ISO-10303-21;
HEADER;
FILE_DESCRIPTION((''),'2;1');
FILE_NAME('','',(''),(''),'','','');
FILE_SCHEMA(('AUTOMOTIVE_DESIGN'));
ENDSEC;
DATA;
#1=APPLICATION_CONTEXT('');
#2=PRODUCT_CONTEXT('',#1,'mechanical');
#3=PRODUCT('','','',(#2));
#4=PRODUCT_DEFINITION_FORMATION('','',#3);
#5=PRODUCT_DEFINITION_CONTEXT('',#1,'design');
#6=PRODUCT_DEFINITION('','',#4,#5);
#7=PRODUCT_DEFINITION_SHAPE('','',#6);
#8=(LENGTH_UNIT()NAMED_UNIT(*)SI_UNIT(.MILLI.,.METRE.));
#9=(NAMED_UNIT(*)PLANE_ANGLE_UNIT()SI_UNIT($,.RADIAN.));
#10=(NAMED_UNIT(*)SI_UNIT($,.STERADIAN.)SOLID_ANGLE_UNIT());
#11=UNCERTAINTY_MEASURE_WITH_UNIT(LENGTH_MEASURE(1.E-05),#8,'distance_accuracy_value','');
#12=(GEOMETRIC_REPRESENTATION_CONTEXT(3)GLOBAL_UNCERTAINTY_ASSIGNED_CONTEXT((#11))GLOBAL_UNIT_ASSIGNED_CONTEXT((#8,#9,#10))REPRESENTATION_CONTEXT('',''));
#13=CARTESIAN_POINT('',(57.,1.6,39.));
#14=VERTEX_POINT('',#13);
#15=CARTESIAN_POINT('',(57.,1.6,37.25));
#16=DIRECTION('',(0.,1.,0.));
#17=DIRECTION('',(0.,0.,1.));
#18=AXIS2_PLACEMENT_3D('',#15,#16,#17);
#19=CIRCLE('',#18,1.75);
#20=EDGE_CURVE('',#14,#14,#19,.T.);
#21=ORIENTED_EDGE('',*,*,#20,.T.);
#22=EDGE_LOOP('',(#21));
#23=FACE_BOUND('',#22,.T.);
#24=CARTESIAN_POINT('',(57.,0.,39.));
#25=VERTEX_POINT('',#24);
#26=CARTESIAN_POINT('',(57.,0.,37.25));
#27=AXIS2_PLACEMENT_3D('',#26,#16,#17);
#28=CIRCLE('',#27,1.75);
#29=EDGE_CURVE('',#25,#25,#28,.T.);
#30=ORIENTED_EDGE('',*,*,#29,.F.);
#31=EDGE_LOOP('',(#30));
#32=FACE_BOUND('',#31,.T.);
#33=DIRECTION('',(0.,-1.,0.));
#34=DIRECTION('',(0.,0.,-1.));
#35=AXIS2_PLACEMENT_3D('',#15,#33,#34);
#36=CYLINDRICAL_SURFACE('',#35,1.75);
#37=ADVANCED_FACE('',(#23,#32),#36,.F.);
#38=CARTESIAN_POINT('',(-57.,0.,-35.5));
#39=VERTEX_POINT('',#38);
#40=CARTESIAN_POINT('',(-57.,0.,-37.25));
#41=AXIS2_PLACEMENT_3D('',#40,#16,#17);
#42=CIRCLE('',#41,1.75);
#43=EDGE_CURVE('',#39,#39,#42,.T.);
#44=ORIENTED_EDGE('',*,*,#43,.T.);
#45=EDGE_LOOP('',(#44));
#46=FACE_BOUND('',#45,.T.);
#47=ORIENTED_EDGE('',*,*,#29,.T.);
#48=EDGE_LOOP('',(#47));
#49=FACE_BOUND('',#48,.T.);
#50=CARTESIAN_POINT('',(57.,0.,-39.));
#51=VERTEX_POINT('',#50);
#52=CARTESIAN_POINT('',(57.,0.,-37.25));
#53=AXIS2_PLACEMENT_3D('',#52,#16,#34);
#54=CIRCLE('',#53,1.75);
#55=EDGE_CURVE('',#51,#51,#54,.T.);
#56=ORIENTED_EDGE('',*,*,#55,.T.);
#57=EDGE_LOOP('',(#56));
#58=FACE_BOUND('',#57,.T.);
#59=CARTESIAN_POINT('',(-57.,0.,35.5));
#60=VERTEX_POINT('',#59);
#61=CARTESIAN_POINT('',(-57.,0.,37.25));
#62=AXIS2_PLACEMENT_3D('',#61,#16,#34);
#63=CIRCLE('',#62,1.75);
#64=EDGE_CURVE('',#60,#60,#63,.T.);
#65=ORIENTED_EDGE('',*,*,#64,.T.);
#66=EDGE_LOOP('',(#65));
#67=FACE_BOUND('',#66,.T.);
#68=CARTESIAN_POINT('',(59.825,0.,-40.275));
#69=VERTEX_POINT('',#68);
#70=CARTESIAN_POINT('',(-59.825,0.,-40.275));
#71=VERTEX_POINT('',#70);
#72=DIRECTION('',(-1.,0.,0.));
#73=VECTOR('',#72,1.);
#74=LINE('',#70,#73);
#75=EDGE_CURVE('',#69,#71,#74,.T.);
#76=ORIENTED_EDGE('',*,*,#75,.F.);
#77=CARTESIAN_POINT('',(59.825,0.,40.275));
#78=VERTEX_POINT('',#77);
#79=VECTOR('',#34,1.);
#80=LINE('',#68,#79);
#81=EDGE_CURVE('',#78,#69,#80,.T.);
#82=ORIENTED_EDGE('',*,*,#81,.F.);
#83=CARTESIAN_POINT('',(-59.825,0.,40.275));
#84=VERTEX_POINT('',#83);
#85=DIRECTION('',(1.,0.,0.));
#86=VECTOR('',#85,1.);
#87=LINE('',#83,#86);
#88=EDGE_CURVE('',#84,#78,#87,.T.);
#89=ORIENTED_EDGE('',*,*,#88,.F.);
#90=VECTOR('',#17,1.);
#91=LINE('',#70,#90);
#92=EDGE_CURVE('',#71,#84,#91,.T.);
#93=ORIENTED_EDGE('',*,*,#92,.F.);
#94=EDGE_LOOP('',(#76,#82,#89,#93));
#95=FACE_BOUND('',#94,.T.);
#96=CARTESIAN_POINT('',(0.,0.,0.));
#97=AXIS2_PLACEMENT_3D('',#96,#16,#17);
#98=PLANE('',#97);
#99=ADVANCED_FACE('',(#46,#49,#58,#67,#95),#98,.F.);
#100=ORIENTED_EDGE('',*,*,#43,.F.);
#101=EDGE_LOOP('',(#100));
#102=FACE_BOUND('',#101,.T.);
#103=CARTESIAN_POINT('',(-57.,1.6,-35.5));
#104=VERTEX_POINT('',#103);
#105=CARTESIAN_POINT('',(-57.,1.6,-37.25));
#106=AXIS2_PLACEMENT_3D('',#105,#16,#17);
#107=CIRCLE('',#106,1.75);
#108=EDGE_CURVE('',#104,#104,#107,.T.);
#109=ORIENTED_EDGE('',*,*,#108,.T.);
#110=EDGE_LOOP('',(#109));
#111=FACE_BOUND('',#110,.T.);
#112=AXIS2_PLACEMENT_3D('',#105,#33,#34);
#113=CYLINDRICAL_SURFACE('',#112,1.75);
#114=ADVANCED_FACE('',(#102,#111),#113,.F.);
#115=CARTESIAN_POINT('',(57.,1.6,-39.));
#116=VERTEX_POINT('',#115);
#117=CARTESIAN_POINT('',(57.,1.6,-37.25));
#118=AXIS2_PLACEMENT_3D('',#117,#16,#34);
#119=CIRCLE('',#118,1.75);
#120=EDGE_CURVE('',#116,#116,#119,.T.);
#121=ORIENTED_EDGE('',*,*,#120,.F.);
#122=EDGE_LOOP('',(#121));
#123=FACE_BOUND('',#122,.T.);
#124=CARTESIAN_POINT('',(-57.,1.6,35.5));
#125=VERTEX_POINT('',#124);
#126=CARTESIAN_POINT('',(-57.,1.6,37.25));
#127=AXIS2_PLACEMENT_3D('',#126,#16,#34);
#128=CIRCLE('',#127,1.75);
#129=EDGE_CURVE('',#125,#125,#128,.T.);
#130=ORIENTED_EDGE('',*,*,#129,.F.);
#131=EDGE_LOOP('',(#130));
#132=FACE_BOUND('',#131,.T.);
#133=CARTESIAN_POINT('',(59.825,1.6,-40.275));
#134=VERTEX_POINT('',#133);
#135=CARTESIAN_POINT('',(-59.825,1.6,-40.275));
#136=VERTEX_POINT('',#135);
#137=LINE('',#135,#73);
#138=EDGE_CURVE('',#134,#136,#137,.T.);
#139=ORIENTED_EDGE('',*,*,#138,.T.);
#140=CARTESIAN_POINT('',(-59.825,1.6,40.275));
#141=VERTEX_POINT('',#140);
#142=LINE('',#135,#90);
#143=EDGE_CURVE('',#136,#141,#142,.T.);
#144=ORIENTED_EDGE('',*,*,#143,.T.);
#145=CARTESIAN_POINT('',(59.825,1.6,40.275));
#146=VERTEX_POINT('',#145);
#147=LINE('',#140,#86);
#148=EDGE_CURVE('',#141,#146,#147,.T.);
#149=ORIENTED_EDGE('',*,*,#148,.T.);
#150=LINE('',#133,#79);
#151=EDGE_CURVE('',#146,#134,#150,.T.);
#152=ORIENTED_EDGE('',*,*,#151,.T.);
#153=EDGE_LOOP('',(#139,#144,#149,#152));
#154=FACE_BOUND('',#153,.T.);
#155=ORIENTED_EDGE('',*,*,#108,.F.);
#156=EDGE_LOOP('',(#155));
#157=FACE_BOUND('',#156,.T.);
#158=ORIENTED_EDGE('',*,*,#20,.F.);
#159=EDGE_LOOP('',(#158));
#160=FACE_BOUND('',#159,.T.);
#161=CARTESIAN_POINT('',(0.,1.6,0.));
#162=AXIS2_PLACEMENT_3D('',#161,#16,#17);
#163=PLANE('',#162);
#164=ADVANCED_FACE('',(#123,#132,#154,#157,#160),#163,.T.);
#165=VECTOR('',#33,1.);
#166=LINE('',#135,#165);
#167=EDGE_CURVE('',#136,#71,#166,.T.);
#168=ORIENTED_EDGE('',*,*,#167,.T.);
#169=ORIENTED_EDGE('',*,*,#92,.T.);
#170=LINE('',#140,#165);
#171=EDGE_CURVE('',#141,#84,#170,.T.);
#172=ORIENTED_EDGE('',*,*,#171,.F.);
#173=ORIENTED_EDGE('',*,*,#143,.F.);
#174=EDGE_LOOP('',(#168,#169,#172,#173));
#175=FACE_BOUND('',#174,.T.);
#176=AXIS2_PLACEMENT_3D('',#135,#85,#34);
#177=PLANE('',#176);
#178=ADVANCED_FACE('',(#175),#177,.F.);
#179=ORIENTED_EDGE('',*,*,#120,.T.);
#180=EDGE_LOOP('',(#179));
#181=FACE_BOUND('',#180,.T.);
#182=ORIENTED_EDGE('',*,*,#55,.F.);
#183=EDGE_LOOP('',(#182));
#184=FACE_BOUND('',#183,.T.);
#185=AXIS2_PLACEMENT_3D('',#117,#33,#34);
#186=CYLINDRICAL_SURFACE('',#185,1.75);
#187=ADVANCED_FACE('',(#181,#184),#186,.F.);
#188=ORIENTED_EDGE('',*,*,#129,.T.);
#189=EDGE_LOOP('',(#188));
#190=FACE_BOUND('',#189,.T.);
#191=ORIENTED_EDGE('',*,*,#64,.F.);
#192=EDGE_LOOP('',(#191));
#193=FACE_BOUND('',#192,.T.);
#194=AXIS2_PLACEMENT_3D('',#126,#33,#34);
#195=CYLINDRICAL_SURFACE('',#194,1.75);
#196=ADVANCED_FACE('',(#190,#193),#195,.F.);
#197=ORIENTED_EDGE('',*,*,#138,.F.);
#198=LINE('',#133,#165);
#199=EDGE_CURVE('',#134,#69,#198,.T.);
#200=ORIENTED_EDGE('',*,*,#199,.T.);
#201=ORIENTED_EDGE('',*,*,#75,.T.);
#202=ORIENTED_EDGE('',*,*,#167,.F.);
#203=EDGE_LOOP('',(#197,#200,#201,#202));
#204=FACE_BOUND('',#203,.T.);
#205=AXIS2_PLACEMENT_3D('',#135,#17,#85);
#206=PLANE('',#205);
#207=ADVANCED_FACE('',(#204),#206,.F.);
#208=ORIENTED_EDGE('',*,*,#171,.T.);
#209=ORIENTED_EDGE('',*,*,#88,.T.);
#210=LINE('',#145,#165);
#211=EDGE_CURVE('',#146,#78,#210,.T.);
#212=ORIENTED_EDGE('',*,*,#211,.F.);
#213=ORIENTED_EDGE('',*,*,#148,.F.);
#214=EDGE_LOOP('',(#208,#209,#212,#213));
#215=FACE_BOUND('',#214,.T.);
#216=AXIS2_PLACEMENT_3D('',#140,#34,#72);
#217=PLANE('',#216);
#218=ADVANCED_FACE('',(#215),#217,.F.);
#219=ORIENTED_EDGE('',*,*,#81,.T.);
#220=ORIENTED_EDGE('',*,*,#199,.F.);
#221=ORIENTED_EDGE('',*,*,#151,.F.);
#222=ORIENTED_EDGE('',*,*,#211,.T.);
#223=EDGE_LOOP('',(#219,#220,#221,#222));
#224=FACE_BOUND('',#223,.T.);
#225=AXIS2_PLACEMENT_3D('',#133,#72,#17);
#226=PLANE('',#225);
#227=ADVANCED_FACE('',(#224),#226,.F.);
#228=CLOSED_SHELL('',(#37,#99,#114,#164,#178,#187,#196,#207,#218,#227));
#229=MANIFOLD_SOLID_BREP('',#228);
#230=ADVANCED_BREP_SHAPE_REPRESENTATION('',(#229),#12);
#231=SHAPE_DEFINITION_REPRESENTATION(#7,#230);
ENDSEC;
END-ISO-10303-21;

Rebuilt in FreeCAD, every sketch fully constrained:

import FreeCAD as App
import Part
import Sketcher

V = App.Vector
Q = App.Units.Quantity

doc = App.newDocument("Part")
params = doc.addObject("Spreadsheet::Sheet", "Params")
for row, (alias, value) in enumerate([
    ("sketch1_diameter", "3.5 mm"),
    ("sketch1_width", "119.65 mm"),
    ("sketch1_height", "80.55 mm"),
    ("pad1_length", "1.6 mm"),
], start=1):
    params.set(f"A{row}", alias)
    params.set(f"B{row}", "=" + value)
    params.setAlias(f"B{row}", alias)

body = doc.addObject("PartDesign::Body", "Body")

# Sketch on XZ plane
sketch1 = body.newObject("Sketcher::SketchObject", "Sketch")
sketch1.AttachmentSupport = (doc.getObject("XZ_Plane"), [""])
sketch1.MapMode = "FlatFace"
sketch1.addGeometry([
    Part.LineSegment(V(-59.825, -40.275, 0), V(-59.825, 40.275, 0)),  # 0
    Part.LineSegment(V(-59.825, 40.275, 0), V(59.825, 40.275, 0)),  # 1
    Part.LineSegment(V(59.825, 40.275, 0), V(59.825, -40.275, 0)),  # 2
    Part.LineSegment(V(59.825, -40.275, 0), V(-59.825, -40.275, 0)),  # 3
    Part.Circle(V(-57, 37.25, 0), V(0, 0, 1), 1.75),  # 4
    Part.Circle(V(57, 37.25, 0), V(0, 0, 1), 1.75),  # 5
    Part.Circle(V(-57, -37.25, 0), V(0, 0, 1), 1.75),  # 6
    Part.Circle(V(57, -37.25, 0), V(0, 0, 1), 1.75),  # 7
], False)
sketch1.addConstraint([
    Sketcher.Constraint("Coincident", 0, 2, 1, 1),
    Sketcher.Constraint("Coincident", 1, 2, 2, 1),
    Sketcher.Constraint("Coincident", 2, 2, 3, 1),
    Sketcher.Constraint("Coincident", 3, 2, 0, 1),
    Sketcher.Constraint("Vertical", 0),
    Sketcher.Constraint("Horizontal", 1),
    Sketcher.Constraint("Vertical", 2),
    Sketcher.Constraint("Horizontal", 3),
    Sketcher.Constraint("Equal", 4, 5),
    Sketcher.Constraint("Equal", 5, 6),
    Sketcher.Constraint("Equal", 6, 7),
    Sketcher.Constraint("Symmetric", 5, 3, 6, 3, -1, 1),
    Sketcher.Constraint("Symmetric", 4, 3, 7, 3, -1, 1),
    Sketcher.Constraint("Symmetric", 0, 2, 2, 2, -1, 1),
    Sketcher.Constraint("Symmetric", 4, 3, 5, 3, -2),
    Sketcher.Constraint("Diameter", 4, Q("3.5 mm")),
    Sketcher.Constraint("DistanceX", 4, 3, -1, 1, Q("57 mm")),
    Sketcher.Constraint("DistanceX", 1, 1, 1, 2, Q("119.65 mm")),
    Sketcher.Constraint("DistanceY", 0, 1, 0, 2, Q("80.55 mm")),
    Sketcher.Constraint("DistanceY", 6, 3, 4, 3, Q("74.5 mm")),
])
sketch1.setExpression("Constraints[15]", "Params.sketch1_diameter")
sketch1.setExpression("Constraints[17]", "Params.sketch1_width")
sketch1.setExpression("Constraints[18]", "Params.sketch1_height")
pad1 = body.newObject("PartDesign::Pad", "Pad")
pad1.Profile = sketch1
pad1.setExpression("Length", "Params.pad1_length")
pad1.Reversed = True

doc.recompute()
